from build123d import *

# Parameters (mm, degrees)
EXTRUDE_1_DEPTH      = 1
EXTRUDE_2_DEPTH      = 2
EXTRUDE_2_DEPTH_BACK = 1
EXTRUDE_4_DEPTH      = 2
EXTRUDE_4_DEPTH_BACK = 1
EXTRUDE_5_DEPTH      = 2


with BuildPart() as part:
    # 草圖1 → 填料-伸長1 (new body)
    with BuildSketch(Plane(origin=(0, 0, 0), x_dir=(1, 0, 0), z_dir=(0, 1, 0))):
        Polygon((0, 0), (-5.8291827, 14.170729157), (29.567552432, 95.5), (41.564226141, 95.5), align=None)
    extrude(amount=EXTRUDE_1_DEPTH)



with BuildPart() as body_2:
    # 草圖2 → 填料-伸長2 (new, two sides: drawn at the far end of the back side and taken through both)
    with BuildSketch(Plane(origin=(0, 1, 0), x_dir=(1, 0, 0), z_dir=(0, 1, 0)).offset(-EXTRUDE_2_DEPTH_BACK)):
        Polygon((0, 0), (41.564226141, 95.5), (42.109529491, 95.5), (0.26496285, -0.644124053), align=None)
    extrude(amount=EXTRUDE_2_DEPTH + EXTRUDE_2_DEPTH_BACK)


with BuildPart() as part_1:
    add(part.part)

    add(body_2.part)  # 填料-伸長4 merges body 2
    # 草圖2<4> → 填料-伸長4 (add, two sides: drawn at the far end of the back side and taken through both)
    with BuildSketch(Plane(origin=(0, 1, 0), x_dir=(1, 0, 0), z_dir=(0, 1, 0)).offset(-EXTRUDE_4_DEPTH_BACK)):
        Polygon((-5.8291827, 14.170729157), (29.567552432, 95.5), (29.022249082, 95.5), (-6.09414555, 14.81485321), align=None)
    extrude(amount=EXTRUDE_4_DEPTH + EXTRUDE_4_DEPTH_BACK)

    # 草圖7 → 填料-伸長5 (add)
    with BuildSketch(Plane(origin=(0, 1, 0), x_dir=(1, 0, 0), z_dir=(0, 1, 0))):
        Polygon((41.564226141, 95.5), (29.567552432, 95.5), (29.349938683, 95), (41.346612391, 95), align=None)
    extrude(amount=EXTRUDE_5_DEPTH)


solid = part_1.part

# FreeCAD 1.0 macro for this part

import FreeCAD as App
import Part
import Sketcher
Q = App.Units.Quantity


def add_polygon(sketch, points):
    """Adds a closed chain of lines whose ends are joined by coincident constraints."""
    first, n = sketch.GeometryCount, len(points)
    for a, b in zip(points, points[1:] + points[:1]):
        sketch.addGeometry(Part.LineSegment(App.Vector(*a, 0), App.Vector(*b, 0)), False)
    for i in range(n):
        sketch.addConstraint(Sketcher.Constraint("Coincident", first + i, 2, first + (i + 1) % n, 1))

doc = App.newDocument("Part")
body = doc.addObject("PartDesign::Body", "Body")

# Sketch on XZ plane
sketch1 = body.newObject("Sketcher::SketchObject", "Sketch")
sketch1.AttachmentSupport = (doc.getObject("XZ_Plane"), [""])
sketch1.MapMode = "FlatFace"
add_polygon(sketch1, [(-6, -14), (0, 0), (42, -96), (30, -96)])  # lines 0-3
sketch1.addConstraint(Sketcher.Constraint("Horizontal", 2))
sketch1.addConstraint(Sketcher.Constraint("Coincident", 0, 2, -1, 1))
sketch1.addConstraint(Sketcher.Constraint("Parallel", 1, 3))
sketch1.addConstraint(Sketcher.Constraint("DistanceY", 1, 2, -1, 1, Q("95.5 mm")))
sketch1.addConstraint(Sketcher.Constraint("Angle", 0, Q("67.64 deg")))
sketch1.addConstraint(Sketcher.Constraint("Angle", 1, Q("-66.48 deg")))
sketch1.addConstraint(Sketcher.Constraint("DistanceX", 2, 2, 2, 1, Q("11.996674 mm")))
pad1 = body.newObject("PartDesign::Pad", "Pad")
pad1.Profile = sketch1
pad1.Length = 1
pad1.Reversed = True
body2 = doc.addObject("PartDesign::Body", "Body001")

# Sketch on XZ plane
sketch2 = body2.newObject("Sketcher::SketchObject", "Sketch001")
sketch2.AttachmentSupport = (doc.getObject("XZ_Plane001"), [""])
sketch2.MapMode = "FlatFace"
sketch2.AttachmentOffset = App.Placement(App.Vector(0, 0, -1), App.Rotation())
add_polygon(sketch2, [(41.6, -95.5), (0, 0), (0.3, 0.6), (42.1, -95.5)])  # lines 0-3
sketch2.addConstraint(Sketcher.Constraint("Horizontal", 3))
sketch2.addConstraint(Sketcher.Constraint("Coincident", 0, 2, -1, 1))
sketch2.addConstraint(Sketcher.Constraint("Parallel", 0, 2))
sketch2.addConstraint(Sketcher.Constraint("DistanceY", 2, 2, -1, 1, Q("95.5 mm")))
sketch2.addConstraint(Sketcher.Constraint("Angle", 0, Q("113.52 deg")))
sketch2.addConstraint(Sketcher.Constraint("Angle", 1, Q("67.64 deg")))
sketch2.addConstraint(Sketcher.Constraint("DistanceX", 3, 2, 3, 1, Q("0.545303 mm")))
pad2 = body2.newObject("PartDesign::Pad", "Pad001")
pad2.Profile = sketch2
pad2.Type = "TwoLengths"
pad2.Length = 2
pad2.Length2 = 1
pad2.Reversed = True
doc.recompute()

boolean = body.newObject("PartDesign::Boolean", "Boolean")
boolean.Type = "Fuse"
boolean.addObjects([body2])

# Sketch on XZ plane
sketch3 = body.newObject("Sketcher::SketchObject", "Sketch002")
sketch3.AttachmentSupport = (doc.getObject("XZ_Plane"), [""])
sketch3.MapMode = "FlatFace"
sketch3.AttachmentOffset = App.Placement(App.Vector(0, 0, -1), App.Rotation())
add_polygon(sketch3, [(-5.8, -14.2), (29.6, -95.5), (29, -95.5), (-6.1, -14.8)])  # lines 0-3
sketch3.addConstraint(Sketcher.Constraint("Horizontal", 1))
sketch3.addConstraint(Sketcher.Constraint("Parallel", 0, 2))
sketch3.addConstraint(Sketcher.Constraint("DistanceY", 0, 2, -1, 1, Q("95.5 mm")))
sketch3.addConstraint(Sketcher.Constraint("Angle", 0, Q("-66.48 deg")))
sketch3.addConstraint(Sketcher.Constraint("Angle", 3, Q("67.64 deg")))
sketch3.addConstraint(Sketcher.Constraint("Distance", 2, Q("87.995762 mm")))
sketch3.addConstraint(Sketcher.Constraint("DistanceX", 1, 2, 1, 1, Q("0.545303 mm")))
sketch3.addConstraint(Sketcher.Constraint("DistanceX", -1, 1, 1, 2, Q("29.022249 mm")))
pad3 = body.newObject("PartDesign::Pad", "Pad002")
pad3.Profile = sketch3
pad3.Type = "TwoLengths"
pad3.Length = 2
pad3.Length2 = 1
pad3.Reversed = True

# Sketch on XZ plane
sketch4 = body.newObject("Sketcher::SketchObject", "Sketch003")
sketch4.AttachmentSupport = (doc.getObject("XZ_Plane"), [""])
sketch4.MapMode = "FlatFace"
sketch4.AttachmentOffset = App.Placement(App.Vector(0, 0, -1), App.Rotation())
add_polygon(sketch4, [(41.6, -95.5), (29.6, -95.5), (29.3, -95), (41.3, -95)])  # lines 0-3
sketch4.addConstraint(Sketcher.Constraint("Horizontal", 0))
sketch4.addConstraint(Sketcher.Constraint("Horizontal", 2))
sketch4.addConstraint(Sketcher.Constraint("Parallel", 1, 3))
sketch4.addConstraint(Sketcher.Constraint("DistanceY", 1, 2, -1, 1, Q("95 mm")))
sketch4.addConstraint(Sketcher.Constraint("DistanceY", 0, 2, -1, 1, Q("95.5 mm")))
sketch4.addConstraint(Sketcher.Constraint("Angle", 1, Q("113.52 deg")))
sketch4.addConstraint(Sketcher.Constraint("DistanceX", 0, 2, 0, 1, Q("11.996674 mm")))
sketch4.addConstraint(Sketcher.Constraint("DistanceX", -1, 1, 1, 2, Q("29.349939 mm")))
pad4 = body.newObject("PartDesign::Pad", "Pad003")
pad4.Profile = sketch4
pad4.Length = 2
pad4.Reversed = True

doc.recompute()
